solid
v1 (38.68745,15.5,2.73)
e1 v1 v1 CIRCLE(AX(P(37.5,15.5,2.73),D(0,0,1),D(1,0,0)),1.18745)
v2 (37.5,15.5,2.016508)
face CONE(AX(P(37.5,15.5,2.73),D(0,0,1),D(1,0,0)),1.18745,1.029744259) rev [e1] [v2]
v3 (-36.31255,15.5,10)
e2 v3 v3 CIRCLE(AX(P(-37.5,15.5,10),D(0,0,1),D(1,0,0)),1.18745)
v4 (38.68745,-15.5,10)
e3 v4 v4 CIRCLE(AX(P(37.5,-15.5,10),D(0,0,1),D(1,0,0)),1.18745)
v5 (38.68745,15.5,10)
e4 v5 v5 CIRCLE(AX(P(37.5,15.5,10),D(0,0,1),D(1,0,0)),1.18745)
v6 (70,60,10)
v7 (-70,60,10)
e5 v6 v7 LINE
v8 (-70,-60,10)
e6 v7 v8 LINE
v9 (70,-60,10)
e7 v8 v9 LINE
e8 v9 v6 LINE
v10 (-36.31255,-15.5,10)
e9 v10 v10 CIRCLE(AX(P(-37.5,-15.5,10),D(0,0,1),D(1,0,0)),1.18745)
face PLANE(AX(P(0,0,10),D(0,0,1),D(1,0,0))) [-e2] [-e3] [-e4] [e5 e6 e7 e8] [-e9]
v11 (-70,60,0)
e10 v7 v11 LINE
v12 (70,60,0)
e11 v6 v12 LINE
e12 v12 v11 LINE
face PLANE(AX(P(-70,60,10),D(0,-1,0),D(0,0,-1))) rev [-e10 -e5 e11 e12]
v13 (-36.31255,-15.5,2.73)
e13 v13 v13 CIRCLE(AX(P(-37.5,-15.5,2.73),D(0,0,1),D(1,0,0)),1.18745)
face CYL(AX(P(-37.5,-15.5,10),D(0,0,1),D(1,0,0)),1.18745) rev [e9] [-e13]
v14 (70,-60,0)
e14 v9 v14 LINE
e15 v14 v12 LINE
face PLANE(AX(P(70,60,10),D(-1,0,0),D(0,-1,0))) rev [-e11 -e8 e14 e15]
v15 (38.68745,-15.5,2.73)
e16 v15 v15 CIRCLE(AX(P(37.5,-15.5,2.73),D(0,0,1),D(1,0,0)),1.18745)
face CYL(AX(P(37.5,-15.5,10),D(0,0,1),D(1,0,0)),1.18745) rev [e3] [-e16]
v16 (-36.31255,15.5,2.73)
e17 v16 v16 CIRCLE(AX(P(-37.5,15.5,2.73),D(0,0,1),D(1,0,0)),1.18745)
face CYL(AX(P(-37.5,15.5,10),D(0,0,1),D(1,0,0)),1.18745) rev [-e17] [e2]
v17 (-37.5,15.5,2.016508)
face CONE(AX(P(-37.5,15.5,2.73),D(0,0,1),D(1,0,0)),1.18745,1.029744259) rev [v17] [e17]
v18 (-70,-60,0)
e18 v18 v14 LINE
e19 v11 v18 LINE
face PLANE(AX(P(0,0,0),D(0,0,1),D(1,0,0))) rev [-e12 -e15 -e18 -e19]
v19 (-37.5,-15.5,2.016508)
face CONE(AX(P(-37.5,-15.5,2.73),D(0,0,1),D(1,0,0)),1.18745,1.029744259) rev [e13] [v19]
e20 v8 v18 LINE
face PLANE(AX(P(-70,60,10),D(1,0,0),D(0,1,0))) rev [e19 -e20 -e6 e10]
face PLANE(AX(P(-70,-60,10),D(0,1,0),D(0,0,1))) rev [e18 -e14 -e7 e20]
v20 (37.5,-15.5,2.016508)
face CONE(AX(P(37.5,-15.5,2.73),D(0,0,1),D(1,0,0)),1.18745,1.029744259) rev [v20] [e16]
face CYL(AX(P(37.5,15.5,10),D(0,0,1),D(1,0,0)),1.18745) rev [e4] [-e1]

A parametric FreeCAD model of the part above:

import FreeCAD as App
import Part
import Sketcher

V = App.Vector
Q = App.Units.Quantity


def add_polygon(sketch, points):
    """Adds a closed chain of lines whose ends are joined by coincident constraints."""
    first, n = sketch.GeometryCount, len(points)
    for a, b in zip(points, points[1:] + points[:1]):
        sketch.addGeometry(Part.LineSegment(App.Vector(*a, 0), App.Vector(*b, 0)), False)
    for i in range(n):
        sketch.addConstraint(Sketcher.Constraint("Coincident", first + i, 2, first + (i + 1) % n, 1))

doc = App.newDocument("Part")
body = doc.addObject("PartDesign::Body", "Body")

# Sketch on XY plane
sketch1 = doc.addObject("Sketcher::SketchObject", "Sketch")
body.addObject(sketch1)
sketch1.AttachmentSupport = (doc.XY_Plane, [""])
sketch1.MapMode = "FlatFace"
add_polygon(sketch1, [(-70, 60), (-70, -60), (70, -60), (70, 60)])  # lines 0-3
sketch1.addConstraint([
    Sketcher.Constraint("Vertical", 0),
    Sketcher.Constraint("Horizontal", 1),
    Sketcher.Constraint("Vertical", 2),
    Sketcher.Constraint("Horizontal", 3),
    Sketcher.Constraint("Symmetric", 0, 2, 2, 2, -1, 1),
    Sketcher.Constraint("DistanceX", 1, 1, 1, 2, Q("140 mm")),
    Sketcher.Constraint("DistanceY", 0, 2, 0, 1, Q("120 mm")),
])
pad1 = doc.addObject("PartDesign::Pad", "Pad")
body.addObject(pad1)
pad1.Profile = sketch1
pad1.Length = 10

# Sketch on XY plane
sketch2 = doc.addObject("Sketcher::SketchObject", "Sketch001")
body.addObject(sketch2)
sketch2.AttachmentSupport = (doc.XY_Plane, [""])
sketch2.MapMode = "FlatFace"
sketch2.AttachmentOffset = App.Placement(V(0, 0, 10), App.Rotation())
sketch2.addGeometry([
    Part.Circle(V(-37.5, 15.5, 0), V(0, 0, 1), 1.2),
    Part.Circle(V(-37.5, -15.5, 0), V(0, 0, 1), 1.2),
    Part.Circle(V(37.5, 15.5, 0), V(0, 0, 1), 1.2),
    Part.Circle(V(37.5, -15.5, 0), V(0, 0, 1), 1.2),
], False)
sketch2.addConstraint([
    Sketcher.Constraint("Equal", 0, 1),
    Sketcher.Constraint("Equal", 1, 2),
    Sketcher.Constraint("Equal", 2, 3),
    Sketcher.Constraint("Symmetric", 1, 3, 2, 3, -1, 1),
    Sketcher.Constraint("Symmetric", 0, 3, 3, 3, -1, 1),
    Sketcher.Constraint("Symmetric", 0, 3, 2, 3, -2),
    Sketcher.Constraint("DistanceY", 1, 3, 0, 3, Q("31 mm")),
    Sketcher.Constraint("DistanceX", 0, 3, 2, 3, Q("75 mm")),
    Sketcher.Constraint("Diameter", 0, Q("2.3749 mm")),
])
doc.recompute()
hole = doc.addObject("PartDesign::Hole", "Hole")
body.addObject(hole)
hole.Profile = sketch2
hole.ThreadType = "None"
hole.Diameter = 2.3749
hole.DepthType = "Dimension"
hole.Depth = 7.27
hole.DrillPoint = "Angled"
hole.DrillPointAngle = 118

doc.recompute()
